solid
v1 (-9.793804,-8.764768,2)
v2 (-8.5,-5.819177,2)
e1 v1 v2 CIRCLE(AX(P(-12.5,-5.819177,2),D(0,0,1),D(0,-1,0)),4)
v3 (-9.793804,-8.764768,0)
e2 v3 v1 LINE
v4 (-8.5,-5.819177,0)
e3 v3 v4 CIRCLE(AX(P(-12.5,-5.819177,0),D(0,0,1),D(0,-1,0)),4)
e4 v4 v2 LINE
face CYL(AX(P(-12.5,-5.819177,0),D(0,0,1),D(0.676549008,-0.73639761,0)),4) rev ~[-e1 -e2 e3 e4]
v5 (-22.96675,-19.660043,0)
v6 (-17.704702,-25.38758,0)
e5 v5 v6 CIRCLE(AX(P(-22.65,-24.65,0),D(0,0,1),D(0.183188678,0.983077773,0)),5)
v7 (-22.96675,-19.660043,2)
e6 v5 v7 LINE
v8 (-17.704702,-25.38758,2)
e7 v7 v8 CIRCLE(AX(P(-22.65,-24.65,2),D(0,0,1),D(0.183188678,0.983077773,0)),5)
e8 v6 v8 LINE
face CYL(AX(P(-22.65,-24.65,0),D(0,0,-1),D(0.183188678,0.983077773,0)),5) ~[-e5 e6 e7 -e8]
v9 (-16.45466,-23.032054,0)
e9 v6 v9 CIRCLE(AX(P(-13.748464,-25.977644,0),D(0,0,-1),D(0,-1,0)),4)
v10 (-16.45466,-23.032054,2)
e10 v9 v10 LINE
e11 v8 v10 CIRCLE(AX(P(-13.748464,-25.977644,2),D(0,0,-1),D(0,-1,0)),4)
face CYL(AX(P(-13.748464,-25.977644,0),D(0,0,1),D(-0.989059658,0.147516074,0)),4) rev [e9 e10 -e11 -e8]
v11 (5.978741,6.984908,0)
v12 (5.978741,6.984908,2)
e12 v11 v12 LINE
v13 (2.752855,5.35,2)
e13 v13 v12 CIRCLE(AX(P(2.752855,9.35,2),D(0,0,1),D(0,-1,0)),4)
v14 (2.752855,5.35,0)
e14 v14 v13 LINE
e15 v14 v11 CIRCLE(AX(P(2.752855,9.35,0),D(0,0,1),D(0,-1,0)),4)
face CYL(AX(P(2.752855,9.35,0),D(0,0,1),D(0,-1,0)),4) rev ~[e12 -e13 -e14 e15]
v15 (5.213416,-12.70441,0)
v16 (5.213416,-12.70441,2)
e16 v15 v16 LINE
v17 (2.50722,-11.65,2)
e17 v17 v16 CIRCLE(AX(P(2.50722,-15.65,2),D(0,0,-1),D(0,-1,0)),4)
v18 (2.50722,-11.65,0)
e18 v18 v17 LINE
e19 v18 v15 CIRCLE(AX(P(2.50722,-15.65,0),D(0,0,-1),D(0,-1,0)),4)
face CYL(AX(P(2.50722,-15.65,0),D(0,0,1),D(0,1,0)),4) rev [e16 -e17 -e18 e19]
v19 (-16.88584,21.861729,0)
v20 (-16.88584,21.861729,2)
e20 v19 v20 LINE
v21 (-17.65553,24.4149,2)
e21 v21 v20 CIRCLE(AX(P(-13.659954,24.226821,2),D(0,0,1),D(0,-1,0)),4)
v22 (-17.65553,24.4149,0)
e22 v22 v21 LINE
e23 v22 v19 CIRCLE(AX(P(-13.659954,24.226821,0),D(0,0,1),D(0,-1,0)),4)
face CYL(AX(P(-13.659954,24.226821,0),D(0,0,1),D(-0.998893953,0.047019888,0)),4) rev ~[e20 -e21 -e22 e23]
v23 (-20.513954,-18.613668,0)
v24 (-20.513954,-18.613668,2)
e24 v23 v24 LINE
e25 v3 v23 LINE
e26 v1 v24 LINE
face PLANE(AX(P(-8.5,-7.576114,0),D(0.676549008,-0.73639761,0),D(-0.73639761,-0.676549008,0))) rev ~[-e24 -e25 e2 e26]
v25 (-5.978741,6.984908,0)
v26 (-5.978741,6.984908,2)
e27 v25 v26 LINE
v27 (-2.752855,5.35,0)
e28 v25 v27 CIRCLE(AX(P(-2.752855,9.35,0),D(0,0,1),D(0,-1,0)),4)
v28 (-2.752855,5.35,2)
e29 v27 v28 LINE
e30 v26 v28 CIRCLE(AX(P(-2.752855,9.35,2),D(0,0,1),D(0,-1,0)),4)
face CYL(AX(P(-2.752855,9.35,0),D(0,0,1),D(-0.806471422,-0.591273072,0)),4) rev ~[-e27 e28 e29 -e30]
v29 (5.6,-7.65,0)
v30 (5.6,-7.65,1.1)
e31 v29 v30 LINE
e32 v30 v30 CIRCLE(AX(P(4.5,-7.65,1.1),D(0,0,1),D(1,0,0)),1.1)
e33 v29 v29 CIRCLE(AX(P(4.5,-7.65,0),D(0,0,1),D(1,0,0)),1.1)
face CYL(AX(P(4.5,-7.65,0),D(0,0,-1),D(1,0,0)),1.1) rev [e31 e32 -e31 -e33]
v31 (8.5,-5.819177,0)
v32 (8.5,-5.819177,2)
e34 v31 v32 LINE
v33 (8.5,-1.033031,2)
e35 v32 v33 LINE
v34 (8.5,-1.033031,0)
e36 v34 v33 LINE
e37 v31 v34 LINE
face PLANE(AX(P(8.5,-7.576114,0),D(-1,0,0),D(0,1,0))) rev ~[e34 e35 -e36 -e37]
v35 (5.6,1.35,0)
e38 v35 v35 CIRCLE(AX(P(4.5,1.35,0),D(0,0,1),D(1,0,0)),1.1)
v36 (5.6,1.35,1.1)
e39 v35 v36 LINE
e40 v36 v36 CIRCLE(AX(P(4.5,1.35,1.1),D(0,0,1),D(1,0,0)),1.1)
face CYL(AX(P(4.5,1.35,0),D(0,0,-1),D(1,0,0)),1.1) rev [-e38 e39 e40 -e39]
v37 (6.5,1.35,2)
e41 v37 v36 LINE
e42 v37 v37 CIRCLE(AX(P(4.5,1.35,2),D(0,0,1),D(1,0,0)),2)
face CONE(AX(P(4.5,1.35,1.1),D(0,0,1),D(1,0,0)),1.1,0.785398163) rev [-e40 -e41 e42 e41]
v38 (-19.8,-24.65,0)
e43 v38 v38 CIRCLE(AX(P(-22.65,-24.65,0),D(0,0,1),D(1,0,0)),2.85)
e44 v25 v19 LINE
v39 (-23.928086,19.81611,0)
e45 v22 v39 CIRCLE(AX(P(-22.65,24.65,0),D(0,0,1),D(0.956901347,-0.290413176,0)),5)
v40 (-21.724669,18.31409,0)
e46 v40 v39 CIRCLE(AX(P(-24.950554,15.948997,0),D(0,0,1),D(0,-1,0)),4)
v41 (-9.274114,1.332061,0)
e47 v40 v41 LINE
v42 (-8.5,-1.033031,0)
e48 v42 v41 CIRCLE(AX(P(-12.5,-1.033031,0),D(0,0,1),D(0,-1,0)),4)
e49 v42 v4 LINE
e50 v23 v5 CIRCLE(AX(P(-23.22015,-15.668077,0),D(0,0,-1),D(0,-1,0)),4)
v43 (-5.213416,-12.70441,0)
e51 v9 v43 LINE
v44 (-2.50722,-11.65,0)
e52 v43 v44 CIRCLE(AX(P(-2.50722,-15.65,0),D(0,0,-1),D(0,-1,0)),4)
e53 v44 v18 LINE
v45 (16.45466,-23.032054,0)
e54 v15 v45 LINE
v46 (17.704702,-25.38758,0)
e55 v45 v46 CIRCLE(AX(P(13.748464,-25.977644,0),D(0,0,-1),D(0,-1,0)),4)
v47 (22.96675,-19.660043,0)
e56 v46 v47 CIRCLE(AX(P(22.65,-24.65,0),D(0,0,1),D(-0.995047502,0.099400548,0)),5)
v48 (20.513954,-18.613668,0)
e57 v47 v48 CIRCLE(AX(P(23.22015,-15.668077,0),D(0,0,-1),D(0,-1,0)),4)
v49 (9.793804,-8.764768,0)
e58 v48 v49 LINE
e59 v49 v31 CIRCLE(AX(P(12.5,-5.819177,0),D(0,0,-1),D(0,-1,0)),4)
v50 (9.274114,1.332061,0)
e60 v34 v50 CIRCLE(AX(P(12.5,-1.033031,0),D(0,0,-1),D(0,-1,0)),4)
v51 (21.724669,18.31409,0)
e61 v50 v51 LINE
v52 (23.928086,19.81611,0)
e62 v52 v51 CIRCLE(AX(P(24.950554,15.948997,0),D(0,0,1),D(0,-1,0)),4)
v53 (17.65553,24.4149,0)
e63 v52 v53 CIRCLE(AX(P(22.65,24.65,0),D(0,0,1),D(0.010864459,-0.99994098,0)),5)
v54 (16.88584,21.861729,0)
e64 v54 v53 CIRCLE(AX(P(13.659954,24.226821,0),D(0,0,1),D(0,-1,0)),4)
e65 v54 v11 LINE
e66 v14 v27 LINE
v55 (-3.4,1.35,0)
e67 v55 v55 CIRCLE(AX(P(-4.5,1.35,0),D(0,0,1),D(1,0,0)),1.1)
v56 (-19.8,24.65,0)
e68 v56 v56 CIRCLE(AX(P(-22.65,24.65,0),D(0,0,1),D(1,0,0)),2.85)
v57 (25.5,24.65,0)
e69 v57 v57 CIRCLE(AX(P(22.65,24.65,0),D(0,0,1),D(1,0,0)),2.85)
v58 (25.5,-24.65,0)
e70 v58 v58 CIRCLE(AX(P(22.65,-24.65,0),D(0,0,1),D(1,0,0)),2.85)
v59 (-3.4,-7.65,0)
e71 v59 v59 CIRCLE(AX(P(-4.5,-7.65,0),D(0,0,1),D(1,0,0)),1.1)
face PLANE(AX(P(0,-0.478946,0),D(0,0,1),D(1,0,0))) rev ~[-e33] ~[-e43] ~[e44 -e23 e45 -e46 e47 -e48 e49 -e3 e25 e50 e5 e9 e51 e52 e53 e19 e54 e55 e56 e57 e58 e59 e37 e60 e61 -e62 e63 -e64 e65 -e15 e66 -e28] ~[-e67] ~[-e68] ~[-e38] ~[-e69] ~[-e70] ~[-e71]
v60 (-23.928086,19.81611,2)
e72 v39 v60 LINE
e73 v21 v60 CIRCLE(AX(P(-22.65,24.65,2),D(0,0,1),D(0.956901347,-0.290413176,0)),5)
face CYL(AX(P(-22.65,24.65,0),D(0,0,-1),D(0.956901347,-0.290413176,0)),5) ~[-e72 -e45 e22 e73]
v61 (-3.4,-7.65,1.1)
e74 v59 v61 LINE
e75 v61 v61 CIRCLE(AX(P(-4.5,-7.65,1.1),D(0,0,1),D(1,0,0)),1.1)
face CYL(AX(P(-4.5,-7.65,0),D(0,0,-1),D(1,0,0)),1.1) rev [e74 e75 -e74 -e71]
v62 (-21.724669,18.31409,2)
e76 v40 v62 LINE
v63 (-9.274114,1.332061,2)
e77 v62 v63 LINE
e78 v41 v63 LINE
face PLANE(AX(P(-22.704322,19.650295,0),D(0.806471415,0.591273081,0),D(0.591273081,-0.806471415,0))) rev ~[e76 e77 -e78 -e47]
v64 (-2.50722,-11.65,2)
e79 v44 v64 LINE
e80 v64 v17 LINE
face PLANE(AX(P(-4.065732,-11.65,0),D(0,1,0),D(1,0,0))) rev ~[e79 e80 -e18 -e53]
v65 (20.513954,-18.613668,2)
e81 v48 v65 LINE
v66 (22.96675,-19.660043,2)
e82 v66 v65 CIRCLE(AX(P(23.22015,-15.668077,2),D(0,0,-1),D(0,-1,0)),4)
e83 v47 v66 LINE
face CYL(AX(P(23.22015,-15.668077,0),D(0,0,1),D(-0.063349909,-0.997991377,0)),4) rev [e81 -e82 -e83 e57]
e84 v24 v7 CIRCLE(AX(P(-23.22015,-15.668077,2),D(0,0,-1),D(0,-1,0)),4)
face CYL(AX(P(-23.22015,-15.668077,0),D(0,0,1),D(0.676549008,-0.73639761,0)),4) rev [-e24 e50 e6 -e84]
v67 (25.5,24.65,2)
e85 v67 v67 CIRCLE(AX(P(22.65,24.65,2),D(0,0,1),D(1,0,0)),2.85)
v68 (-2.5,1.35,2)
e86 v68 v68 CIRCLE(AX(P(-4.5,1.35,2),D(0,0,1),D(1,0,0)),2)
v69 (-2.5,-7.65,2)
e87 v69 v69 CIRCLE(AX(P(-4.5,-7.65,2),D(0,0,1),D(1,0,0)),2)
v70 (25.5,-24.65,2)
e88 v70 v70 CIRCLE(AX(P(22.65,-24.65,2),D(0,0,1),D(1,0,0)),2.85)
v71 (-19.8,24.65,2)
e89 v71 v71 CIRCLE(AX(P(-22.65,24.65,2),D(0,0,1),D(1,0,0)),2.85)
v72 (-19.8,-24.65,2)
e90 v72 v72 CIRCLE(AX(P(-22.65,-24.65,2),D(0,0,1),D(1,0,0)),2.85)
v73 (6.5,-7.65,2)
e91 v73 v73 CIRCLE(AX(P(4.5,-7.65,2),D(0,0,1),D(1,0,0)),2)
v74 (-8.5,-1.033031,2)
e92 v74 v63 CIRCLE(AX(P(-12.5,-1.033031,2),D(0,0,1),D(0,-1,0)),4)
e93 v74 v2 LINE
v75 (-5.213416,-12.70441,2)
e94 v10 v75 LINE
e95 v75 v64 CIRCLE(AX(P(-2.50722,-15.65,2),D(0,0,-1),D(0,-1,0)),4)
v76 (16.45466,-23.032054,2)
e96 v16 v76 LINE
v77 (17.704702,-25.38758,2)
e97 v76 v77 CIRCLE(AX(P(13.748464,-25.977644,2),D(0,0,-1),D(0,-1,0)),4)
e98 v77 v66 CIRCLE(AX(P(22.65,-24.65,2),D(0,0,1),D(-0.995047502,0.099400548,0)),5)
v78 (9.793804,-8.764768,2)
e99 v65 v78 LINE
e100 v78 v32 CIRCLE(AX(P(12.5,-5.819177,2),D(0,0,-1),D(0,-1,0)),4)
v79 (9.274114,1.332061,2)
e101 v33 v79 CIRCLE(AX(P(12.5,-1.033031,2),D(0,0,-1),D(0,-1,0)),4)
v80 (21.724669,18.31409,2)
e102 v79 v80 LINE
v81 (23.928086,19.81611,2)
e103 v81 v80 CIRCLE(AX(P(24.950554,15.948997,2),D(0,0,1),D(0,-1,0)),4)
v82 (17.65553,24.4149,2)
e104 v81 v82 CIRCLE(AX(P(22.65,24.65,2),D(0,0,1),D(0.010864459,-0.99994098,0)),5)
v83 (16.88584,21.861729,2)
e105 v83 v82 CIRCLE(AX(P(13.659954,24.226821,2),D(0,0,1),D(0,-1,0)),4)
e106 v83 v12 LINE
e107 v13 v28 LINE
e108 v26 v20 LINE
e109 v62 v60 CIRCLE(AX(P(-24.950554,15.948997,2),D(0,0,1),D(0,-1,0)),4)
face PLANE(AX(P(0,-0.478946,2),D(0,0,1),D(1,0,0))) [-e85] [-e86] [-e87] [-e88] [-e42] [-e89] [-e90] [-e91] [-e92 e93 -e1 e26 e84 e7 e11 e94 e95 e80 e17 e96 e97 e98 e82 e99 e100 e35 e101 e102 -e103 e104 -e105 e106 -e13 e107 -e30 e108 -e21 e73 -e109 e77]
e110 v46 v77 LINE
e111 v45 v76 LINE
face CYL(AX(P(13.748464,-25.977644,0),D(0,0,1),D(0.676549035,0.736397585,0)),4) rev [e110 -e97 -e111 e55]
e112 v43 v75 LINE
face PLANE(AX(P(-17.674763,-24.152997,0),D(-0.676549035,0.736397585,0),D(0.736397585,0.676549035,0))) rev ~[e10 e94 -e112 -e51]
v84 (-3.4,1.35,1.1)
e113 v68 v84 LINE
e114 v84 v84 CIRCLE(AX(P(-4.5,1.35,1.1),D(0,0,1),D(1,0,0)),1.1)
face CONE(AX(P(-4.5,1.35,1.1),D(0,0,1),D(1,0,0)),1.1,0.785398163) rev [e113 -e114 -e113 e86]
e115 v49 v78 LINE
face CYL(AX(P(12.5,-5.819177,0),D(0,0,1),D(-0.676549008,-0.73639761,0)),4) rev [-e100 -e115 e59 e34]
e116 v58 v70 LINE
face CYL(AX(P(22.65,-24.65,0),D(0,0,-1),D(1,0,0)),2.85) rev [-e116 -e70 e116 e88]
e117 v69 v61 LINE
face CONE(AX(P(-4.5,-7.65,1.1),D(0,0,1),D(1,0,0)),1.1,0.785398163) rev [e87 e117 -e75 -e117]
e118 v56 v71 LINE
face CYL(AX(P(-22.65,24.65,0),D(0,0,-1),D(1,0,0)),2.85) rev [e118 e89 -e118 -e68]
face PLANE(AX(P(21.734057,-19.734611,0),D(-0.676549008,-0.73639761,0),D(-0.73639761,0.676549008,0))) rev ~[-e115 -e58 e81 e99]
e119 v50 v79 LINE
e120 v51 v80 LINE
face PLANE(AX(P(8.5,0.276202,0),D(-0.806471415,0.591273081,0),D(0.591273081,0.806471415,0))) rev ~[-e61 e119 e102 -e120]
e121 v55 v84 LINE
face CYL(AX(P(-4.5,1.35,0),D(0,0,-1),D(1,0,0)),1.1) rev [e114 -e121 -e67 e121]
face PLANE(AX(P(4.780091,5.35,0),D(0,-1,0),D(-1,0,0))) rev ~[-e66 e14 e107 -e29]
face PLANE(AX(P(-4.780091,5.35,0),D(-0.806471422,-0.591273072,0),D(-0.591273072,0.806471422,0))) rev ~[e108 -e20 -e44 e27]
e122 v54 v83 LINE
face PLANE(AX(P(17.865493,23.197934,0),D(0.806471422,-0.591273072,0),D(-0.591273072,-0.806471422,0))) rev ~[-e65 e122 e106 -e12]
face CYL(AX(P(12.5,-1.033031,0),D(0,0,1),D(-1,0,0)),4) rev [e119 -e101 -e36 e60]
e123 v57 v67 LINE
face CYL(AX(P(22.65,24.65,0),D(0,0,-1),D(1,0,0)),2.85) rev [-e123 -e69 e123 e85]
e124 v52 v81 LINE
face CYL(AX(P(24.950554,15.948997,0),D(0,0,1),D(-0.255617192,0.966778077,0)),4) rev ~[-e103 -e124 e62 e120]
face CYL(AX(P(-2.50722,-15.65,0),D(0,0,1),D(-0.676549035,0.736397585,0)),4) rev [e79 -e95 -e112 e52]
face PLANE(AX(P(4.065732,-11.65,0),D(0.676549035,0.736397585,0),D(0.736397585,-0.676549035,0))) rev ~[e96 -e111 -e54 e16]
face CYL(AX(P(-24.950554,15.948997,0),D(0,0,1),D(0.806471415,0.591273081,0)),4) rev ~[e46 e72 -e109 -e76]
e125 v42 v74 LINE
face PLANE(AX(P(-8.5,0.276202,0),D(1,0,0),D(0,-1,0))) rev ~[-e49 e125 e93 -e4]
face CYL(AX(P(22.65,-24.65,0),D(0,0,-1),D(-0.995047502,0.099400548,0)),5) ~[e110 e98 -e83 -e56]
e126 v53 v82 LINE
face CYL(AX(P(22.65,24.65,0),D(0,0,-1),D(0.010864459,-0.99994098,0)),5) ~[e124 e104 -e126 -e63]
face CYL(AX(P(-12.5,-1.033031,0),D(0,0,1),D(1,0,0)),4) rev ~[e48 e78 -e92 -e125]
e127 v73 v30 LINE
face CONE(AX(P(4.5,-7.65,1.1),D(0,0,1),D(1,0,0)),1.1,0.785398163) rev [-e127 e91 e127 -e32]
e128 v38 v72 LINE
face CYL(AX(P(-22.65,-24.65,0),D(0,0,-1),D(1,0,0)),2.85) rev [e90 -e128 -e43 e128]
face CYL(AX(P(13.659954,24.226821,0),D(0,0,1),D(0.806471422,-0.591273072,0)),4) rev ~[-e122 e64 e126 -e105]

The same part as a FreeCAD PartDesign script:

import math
import FreeCAD as App
import Part
import Sketcher

V = App.Vector
Q = App.Units.Quantity


def edges_at(feature, points):
    """Names of the edges that pass closest to the given points."""
    edges = feature.Shape.Edges
    near = lambda p: min(range(len(edges)), key=lambda i: edges[i].distToShape(Part.Vertex(*p))[0])
    return sorted({f"Edge{near(p) + 1}" for p in points})

doc = App.newDocument("Part")
body = doc.addObject("PartDesign::Body", "Body")

# Sketch on XY plane
sketch1 = body.newObject("Sketcher::SketchObject", "Sketch")
sketch1.AttachmentSupport = (doc.getObject("XY_Plane"), [""])
sketch1.MapMode = "FlatFace"
sketch1.addGeometry([
    Part.LineSegment(V(-8.5, -7.576114, 0), V(-21.734057, -19.734611, 0)),  # 0
    Part.ArcOfCircle(Part.Circle(V(-22.65, -24.65, 0), V(0, 0, 1), 5), math.radians(79.444453), math.radians(365.704652)),  # 1
    Part.LineSegment(V(-17.674763, -24.152997, 0), V(-4.065732, -11.65, 0)),  # 2
    Part.LineSegment(V(-4.065732, -11.65, 0), V(4.065732, -11.65, 0)),  # 3
    Part.LineSegment(V(4.065732, -11.65, 0), V(17.674763, -24.152997, 0)),  # 4
    Part.ArcOfCircle(Part.Circle(V(22.65, -24.65, 0), V(0, 0, 1), 5), math.radians(174.295348), math.radians(460.555547)),  # 5
    Part.LineSegment(V(21.734057, -19.734611, 0), V(8.5, -7.576114, 0)),  # 6
    Part.LineSegment(V(8.5, -7.576114, 0), V(8.5, 0.276202, 0)),  # 7
    Part.LineSegment(V(8.5, 0.276202, 0), V(22.704322, 19.650295, 0)),  # 8
    Part.ArcOfCircle(Part.Circle(V(22.65, 24.65, 0), V(0, 0, 1), 5), math.radians(-89.3775), math.radians(196.882694)),  # 9
    Part.LineSegment(V(17.865493, 23.197934, 0), V(4.780091, 5.35, 0)),  # 10
    Part.LineSegment(V(4.780091, 5.35, 0), V(-4.780091, 5.35, 0)),  # 11
    Part.LineSegment(V(-4.780091, 5.35, 0), V(-17.865493, 23.197934, 0)),  # 12
    Part.ArcOfCircle(Part.Circle(V(-22.65, 24.65, 0), V(0, 0, 1), 5), math.radians(-16.882694), math.radians(269.3775)),  # 13
    Part.LineSegment(V(-22.704322, 19.650295, 0), V(-8.5, 0.276202, 0)),  # 14
    Part.LineSegment(V(-8.5, 0.276202, 0), V(-8.5, -7.576114, 0)),  # 15
    Part.Circle(V(-22.65, -24.65, 0), V(0, 0, 1), 2.85),  # 16
    Part.Circle(V(-4.5, -7.65, 0), V(0, 0, 1), 1.1),  # 17
    Part.Circle(V(22.65, -24.65, 0), V(0, 0, 1), 2.85),  # 18
    Part.Circle(V(4.5, -7.65, 0), V(0, 0, 1), 1.1),  # 19
    Part.Circle(V(-4.5, 1.35, 0), V(0, 0, 1), 1.1),  # 20
    Part.Circle(V(-22.65, 24.65, 0), V(0, 0, 1), 2.85),  # 21
    Part.Circle(V(4.5, 1.35, 0), V(0, 0, 1), 1.1),  # 22
    Part.Circle(V(22.65, 24.65, 0), V(0, 0, 1), 2.85),  # 23
], False)
sketch1.addConstraint([
    Sketcher.Constraint("Coincident", 0, 2, 1, 1),
    Sketcher.Constraint("Coincident", 1, 2, 2, 1),
    Sketcher.Constraint("Coincident", 2, 2, 3, 1),
    Sketcher.Constraint("Coincident", 3, 2, 4, 1),
    Sketcher.Constraint("Coincident", 4, 2, 5, 1),
    Sketcher.Constraint("Coincident", 5, 2, 6, 1),
    Sketcher.Constraint("Coincident", 6, 2, 7, 1),
    Sketcher.Constraint("Coincident", 7, 2, 8, 1),
    Sketcher.Constraint("Coincident", 8, 2, 9, 1),
    Sketcher.Constraint("Coincident", 9, 2, 10, 1),
    Sketcher.Constraint("Coincident", 10, 2, 11, 1),
    Sketcher.Constraint("Coincident", 11, 2, 12, 1),
    Sketcher.Constraint("Coincident", 12, 2, 13, 1),
    Sketcher.Constraint("Coincident", 13, 2, 14, 1),
    Sketcher.Constraint("Coincident", 14, 2, 15, 1),
    Sketcher.Constraint("Coincident", 15, 2, 0, 1),
    Sketcher.Constraint("Horizontal", 3),
    Sketcher.Constraint("Vertical", 7),
    Sketcher.Constraint("Horizontal", 11),
    Sketcher.Constraint("Vertical", 15),
    Sketcher.Constraint("Coincident", 16, 3, 1, 3),
    Sketcher.Constraint("Coincident", 18, 3, 5, 3),
    Sketcher.Constraint("Coincident", 21, 3, 13, 3),
    Sketcher.Constraint("Coincident", 23, 3, 9, 3),
    Sketcher.Constraint("Radius", 1, Q("5 mm")),
    Sketcher.Constraint("Radius", 5, Q("5 mm")),
    Sketcher.Constraint("Radius", 9, Q("5 mm")),
    Sketcher.Constraint("Radius", 13, Q("5 mm")),
    Sketcher.Constraint("Diameter", 16, Q("5.7 mm")),
    Sketcher.Constraint("Diameter", 17, Q("2.2 mm")),
    Sketcher.Constraint("Diameter", 18, Q("5.7 mm")),
    Sketcher.Constraint("Diameter", 19, Q("2.2 mm")),
    Sketcher.Constraint("Diameter", 20, Q("2.2 mm")),
    Sketcher.Constraint("Diameter", 21, Q("5.7 mm")),
    Sketcher.Constraint("Diameter", 22, Q("2.2 mm")),
    Sketcher.Constraint("Diameter", 23, Q("5.7 mm")),
    Sketcher.Constraint("DistanceY", 16, 3, 17, 3, Q("17 mm")),
    Sketcher.Constraint("DistanceY", 5, 3, 17, 3, Q("17 mm")),
    Sketcher.Constraint("DistanceX", 17, 3, 19, 3, Q("9 mm")),
    Sketcher.Constraint("DistanceY", 18, 3, 19, 3, Q("17 mm")),
    Sketcher.Constraint("DistanceY", 17, 3, 20, 3, Q("9 mm")),
    Sketcher.Constraint("DistanceX", 20, 3, 19, 3, Q("9 mm")),
    Sketcher.Constraint("DistanceY", 19, 3, 22, 3, Q("9 mm")),
    Sketcher.Constraint("DistanceX", 20, 3, 22, 3, Q("9 mm")),
    Sketcher.Constraint("DistanceY", 2, 2, 17, 3, Q("4 mm")),
    Sketcher.Constraint("DistanceX", 19, 3, 6, 2, Q("4 mm")),
    Sketcher.Constraint("DistanceY", 22, 3, 10, 2, Q("4 mm")),
    Sketcher.Constraint("DistanceX", 14, 2, 20, 3, Q("4 mm")),
    Sketcher.Constraint("DistanceX", 17, 3, -1, 1, Q("4.5 mm")),
    Sketcher.Constraint("DistanceX", 1, 3, 5, 3, Q("45.300001 mm")),
    Sketcher.Constraint("DistanceY", 5, 3, 9, 3, Q("49.3 mm")),
    Sketcher.Constraint("DistanceX", 1, 3, 9, 3, Q("45.3 mm")),
    Sketcher.Constraint("DistanceX", 13, 3, 9, 3, Q("45.299999 mm")),
    Sketcher.Constraint("DistanceY", 1, 3, 13, 3, Q("49.3 mm")),
    Sketcher.Constraint("DistanceX", 1, 3, -1, 1, Q("22.65 mm")),
    Sketcher.Constraint("DistanceY", 1, 3, -1, 1, Q("24.65 mm")),
    Sketcher.Constraint("DistanceX", 11, 2, 11, 1, Q("9.560182 mm")),
    Sketcher.Constraint("Distance", 2, Q("18.480548 mm")),
    Sketcher.Constraint("Distance", 4, Q("18.480548 mm")),
    Sketcher.Constraint("DistanceX", 3, 1, 3, 2, Q("8.131464 mm")),
    Sketcher.Constraint("DistanceY", 7, 1, 7, 2, Q("7.852316 mm")),
    Sketcher.Constraint("DistanceY", 15, 2, 15, 1, Q("7.852316 mm")),
    Sketcher.Constraint("DistanceY", 0, 2, -1, 1, Q("19.734611 mm")),
    Sketcher.Constraint("DistanceX", 2, 2, -1, 1, Q("4.065732 mm")),
    Sketcher.Constraint("DistanceY", 5, 2, -1, 1, Q("19.734611 mm")),
    Sketcher.Constraint("DistanceX", -1, 1, 10, 2, Q("4.780091 mm")),
    Sketcher.Constraint("DistanceY", 6, 2, 8, 2, Q("27.226409 mm")),
    Sketcher.Constraint("DistanceX", 9, 2, 8, 2, Q("4.838829 mm")),
    Sketcher.Constraint("DistanceY", 8, 2, 9, 2, Q("3.547639 mm")),
    Sketcher.Constraint("DistanceX", 13, 2, 12, 2, Q("4.838829 mm")),
    Sketcher.Constraint("DistanceY", 13, 2, 12, 2, Q("3.547639 mm")),
    Sketcher.Constraint("Distance", 0, Q("17.971347 mm")),
])
pad1 = body.newObject("PartDesign::Pad", "Pad")
pad1.Profile = sketch1
pad1.Length = 2
doc.recompute()

fillet = body.newObject("PartDesign::Fillet", "Fillet")
fillet.Base = (pad1, edges_at(pad1, [
    (-22.704, 19.65, 1),
    (-8.5, 0.276, 1),
    (-8.5, -7.576, 1),
    (-21.734, -19.735, 1),
    (-17.675, -24.153, 1),
    (-4.066, -11.65, 1),
    (4.066, -11.65, 1),
    (17.675, -24.153, 1),
    (21.734, -19.735, 1),
    (8.5, -7.576, 1),
    (8.5, 0.276, 1),
    (22.704, 19.65, 1),
    (17.865, 23.198, 1),
    (4.78, 5.35, 1),
    (-4.78, 5.35, 1),
    (-17.865, 23.198, 1),
]))
fillet.Radius = 4
doc.recompute()

chamfer = body.newObject("PartDesign::Chamfer", "Chamfer")
chamfer.Base = (fillet, edges_at(fillet, [
    (-5.6, 1.35, 2),
    (3.4, 1.35, 2),
    (3.4, -7.65, 2),
    (-5.6, -7.65, 2),
]))
chamfer.Size = 0.9

doc.recompute()
